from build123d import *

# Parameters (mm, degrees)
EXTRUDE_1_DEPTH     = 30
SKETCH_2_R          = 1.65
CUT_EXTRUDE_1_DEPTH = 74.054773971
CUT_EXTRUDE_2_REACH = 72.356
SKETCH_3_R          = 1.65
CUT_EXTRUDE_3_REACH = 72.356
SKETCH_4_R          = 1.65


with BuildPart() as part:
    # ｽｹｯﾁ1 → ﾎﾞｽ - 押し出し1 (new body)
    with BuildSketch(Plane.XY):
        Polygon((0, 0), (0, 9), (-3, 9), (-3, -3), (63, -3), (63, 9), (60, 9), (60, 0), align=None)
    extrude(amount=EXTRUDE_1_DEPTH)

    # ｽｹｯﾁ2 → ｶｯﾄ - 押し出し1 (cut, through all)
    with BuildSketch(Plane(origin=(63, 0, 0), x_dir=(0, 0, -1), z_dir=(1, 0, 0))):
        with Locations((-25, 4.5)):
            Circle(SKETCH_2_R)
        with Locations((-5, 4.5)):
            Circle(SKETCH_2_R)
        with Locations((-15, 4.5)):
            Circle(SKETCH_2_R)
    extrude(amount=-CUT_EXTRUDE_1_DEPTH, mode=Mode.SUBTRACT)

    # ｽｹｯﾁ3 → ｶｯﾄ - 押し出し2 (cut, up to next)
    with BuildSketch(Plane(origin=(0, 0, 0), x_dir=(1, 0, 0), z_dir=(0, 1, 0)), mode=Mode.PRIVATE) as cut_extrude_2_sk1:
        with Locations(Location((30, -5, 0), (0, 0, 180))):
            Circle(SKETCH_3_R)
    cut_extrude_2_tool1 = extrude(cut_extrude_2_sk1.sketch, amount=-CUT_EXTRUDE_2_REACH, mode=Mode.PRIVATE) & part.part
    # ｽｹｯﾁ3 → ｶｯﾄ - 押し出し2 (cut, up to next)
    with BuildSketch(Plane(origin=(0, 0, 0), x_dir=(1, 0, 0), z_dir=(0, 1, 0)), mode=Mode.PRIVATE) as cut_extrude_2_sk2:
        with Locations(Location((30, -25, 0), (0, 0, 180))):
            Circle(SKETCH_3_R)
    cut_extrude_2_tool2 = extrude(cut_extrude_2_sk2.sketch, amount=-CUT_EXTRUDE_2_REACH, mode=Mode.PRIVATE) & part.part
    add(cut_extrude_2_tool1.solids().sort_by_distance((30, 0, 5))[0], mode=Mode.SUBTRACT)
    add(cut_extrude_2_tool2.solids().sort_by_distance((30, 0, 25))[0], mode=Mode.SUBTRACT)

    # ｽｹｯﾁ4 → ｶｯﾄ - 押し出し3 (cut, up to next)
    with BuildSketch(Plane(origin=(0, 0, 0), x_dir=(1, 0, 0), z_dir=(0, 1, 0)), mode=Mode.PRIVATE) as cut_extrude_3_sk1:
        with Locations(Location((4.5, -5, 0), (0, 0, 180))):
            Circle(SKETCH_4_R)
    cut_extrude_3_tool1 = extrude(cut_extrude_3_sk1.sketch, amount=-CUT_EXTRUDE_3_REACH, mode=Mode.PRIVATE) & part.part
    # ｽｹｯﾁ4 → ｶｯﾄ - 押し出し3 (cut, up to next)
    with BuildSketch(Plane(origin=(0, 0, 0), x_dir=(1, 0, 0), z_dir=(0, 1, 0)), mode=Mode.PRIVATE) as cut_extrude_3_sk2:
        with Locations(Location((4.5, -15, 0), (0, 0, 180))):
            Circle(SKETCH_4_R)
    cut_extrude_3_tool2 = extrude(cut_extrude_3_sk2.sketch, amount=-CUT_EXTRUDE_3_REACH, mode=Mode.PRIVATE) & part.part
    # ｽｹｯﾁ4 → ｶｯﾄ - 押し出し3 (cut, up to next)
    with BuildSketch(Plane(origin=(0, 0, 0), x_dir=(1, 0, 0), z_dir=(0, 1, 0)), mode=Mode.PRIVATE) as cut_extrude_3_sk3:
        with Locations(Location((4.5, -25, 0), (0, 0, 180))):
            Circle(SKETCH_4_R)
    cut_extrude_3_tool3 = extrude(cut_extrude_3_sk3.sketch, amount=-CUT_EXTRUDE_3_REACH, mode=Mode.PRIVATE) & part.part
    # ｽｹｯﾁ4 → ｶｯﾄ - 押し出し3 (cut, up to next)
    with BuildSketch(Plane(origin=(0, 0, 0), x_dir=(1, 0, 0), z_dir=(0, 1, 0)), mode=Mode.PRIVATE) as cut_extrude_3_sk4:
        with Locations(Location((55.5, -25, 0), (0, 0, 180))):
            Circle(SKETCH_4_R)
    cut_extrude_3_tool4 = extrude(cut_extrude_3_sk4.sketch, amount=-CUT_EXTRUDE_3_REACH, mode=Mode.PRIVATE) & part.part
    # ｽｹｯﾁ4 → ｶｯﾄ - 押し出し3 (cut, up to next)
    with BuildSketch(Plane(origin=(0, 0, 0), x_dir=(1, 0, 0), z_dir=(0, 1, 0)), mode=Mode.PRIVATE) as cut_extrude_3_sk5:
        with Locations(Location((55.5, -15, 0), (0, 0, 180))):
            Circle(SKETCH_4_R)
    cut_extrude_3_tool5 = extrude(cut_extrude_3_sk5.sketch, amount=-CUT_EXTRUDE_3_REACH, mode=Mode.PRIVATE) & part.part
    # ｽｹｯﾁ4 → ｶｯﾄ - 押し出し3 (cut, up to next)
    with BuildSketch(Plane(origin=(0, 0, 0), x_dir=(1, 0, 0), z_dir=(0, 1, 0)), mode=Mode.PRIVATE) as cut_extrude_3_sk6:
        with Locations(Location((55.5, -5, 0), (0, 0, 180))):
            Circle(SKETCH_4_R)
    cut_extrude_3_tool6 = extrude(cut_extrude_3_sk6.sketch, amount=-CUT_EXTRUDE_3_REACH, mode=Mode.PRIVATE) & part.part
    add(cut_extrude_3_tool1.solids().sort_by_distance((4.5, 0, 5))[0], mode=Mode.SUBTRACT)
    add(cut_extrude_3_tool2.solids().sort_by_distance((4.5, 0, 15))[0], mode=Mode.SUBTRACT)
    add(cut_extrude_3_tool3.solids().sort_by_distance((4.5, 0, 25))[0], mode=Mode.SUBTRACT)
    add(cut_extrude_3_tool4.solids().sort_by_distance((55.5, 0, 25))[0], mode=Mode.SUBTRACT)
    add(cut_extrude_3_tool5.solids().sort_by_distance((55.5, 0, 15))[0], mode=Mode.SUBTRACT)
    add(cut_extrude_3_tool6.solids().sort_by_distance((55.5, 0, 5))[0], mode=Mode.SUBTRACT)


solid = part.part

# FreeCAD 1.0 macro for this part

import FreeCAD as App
import Part
import Sketcher

V = App.Vector
Q = App.Units.Quantity

doc = App.newDocument("Part")
params = doc.addObject("Spreadsheet::Sheet", "Params")
for row, (alias, value) in enumerate([
    ("sketch1_width", "3 mm"),
    ("sketch1_width2", "66 mm"),
    ("sketch1_height", "9 mm"),
    ("sketch1_height2", "12 mm"),
    ("pad1_length", "30 mm"),
    ("sketch2_diameter", "3.3 mm"),
    ("sketch3_diameter", "3.3 mm"),
    ("sketch4_diameter", "3.3 mm"),
    ("sketch5_diameter", "3.3 mm"),
    ("sketch6_diameter", "3.3 mm"),
    ("sketch7_diameter", "3.3 mm"),
    ("sketch8_diameter", "3.3 mm"),
    ("sketch9_diameter", "3.3 mm"),
    ("sketch10_diameter", "3.3 mm"),
], start=1):
    params.set(f"A{row}", alias)
    params.set(f"B{row}", "=" + value)
    params.setAlias(f"B{row}", alias)

body = doc.addObject("PartDesign::Body", "Body")

# Sketch on XY plane
sketch1 = doc.addObject("Sketcher::SketchObject", "Sketch")
body.addObject(sketch1)
sketch1.AttachmentSupport = (doc.XY_Plane, [""])
sketch1.MapMode = "FlatFace"
sketch1.addGeometry([
    Part.LineSegment(V(0, 0, 0), V(0, 9, 0)),  # 0
    Part.LineSegment(V(0, 9, 0), V(-3, 9, 0)),  # 1
    Part.LineSegment(V(-3, 9, 0), V(-3, -3, 0)),  # 2
    Part.LineSegment(V(-3, -3, 0), V(63, -3, 0)),  # 3
    Part.LineSegment(V(63, -3, 0), V(63, 9, 0)),  # 4
    Part.LineSegment(V(63, 9, 0), V(60, 9, 0)),  # 5
    Part.LineSegment(V(60, 9, 0), V(60, 0, 0)),  # 6
    Part.LineSegment(V(60, 0, 0), V(0, 0, 0)),  # 7
], False)
sketch1.addConstraint([
    Sketcher.Constraint("Coincident", 0, 2, 1, 1),
    Sketcher.Constraint("Coincident", 1, 2, 2, 1),
    Sketcher.Constraint("Coincident", 2, 2, 3, 1),
    Sketcher.Constraint("Coincident", 3, 2, 4, 1),
    Sketcher.Constraint("Coincident", 4, 2, 5, 1),
    Sketcher.Constraint("Coincident", 5, 2, 6, 1),
    Sketcher.Constraint("Coincident", 6, 2, 7, 1),
    Sketcher.Constraint("Coincident", 7, 2, 0, 1),
    Sketcher.Constraint("Vertical", 0),
    Sketcher.Constraint("Horizontal", 1),
    Sketcher.Constraint("Vertical", 2),
    Sketcher.Constraint("Horizontal", 3),
    Sketcher.Constraint("Vertical", 4),
    Sketcher.Constraint("Horizontal", 5),
    Sketcher.Constraint("Vertical", 6),
    Sketcher.Constraint("Horizontal", 7),
    Sketcher.Constraint("Coincident", 7, 2, -1, 1),
    Sketcher.Constraint("Horizontal", 1, 2, 4, 2),
    Sketcher.Constraint("Equal", 1, 5),
    Sketcher.Constraint("DistanceX", 1, 2, 1, 1, Q("3 mm")),
    Sketcher.Constraint("DistanceX", 3, 1, 3, 2, Q("66 mm")),
    Sketcher.Constraint("DistanceY", 0, 1, 0, 2, Q("9 mm")),
    Sketcher.Constraint("DistanceY", 2, 2, 2, 1, Q("12 mm")),
])
sketch1.setExpression("Constraints[19]", "Params.sketch1_width")
sketch1.setExpression("Constraints[20]", "Params.sketch1_width2")
sketch1.setExpression("Constraints[21]", "Params.sketch1_height")
sketch1.setExpression("Constraints[22]", "Params.sketch1_height2")
pad1 = doc.addObject("PartDesign::Pad", "Pad")
body.addObject(pad1)
pad1.Profile = sketch1
pad1.setExpression("Length", "Params.pad1_length")

# Sketch on YZ plane
sketch2 = doc.addObject("Sketcher::SketchObject", "Sketch001")
body.addObject(sketch2)
sketch2.AttachmentSupport = (doc.YZ_Plane, [""])
sketch2.MapMode = "FlatFace"
sketch2.AttachmentOffset = App.Placement(V(0, 0, 63), App.Rotation())
sketch2.addGeometry([
    Part.Circle(V(4.5, 25, 0), V(0, 0, 1), 1.6),
    Part.Circle(V(4.5, 5, 0), V(0, 0, 1), 1.6),
    Part.Circle(V(4.5, 15, 0), V(0, 0, 1), 1.6),
], False)
sketch2.addConstraint([
    Sketcher.Constraint("Equal", 0, 1),
    Sketcher.Constraint("Equal", 1, 2),
    Sketcher.Constraint("Vertical", 0, 3, 1, 3),
    Sketcher.Constraint("Vertical", 1, 3, 2, 3),
    Sketcher.Constraint("Diameter", 0, Q("3.3 mm")),
    Sketcher.Constraint("DistanceY", -1, 1, 0, 3, Q("25 mm")),
    Sketcher.Constraint("DistanceY", -1, 1, 1, 3, Q("5 mm")),
    Sketcher.Constraint("DistanceY", -1, 1, 2, 3, Q("15 mm")),
    Sketcher.Constraint("DistanceX", -1, 1, 0, 3, Q("4.5 mm")),
])
sketch2.setExpression("Constraints[4]", "Params.sketch2_diameter")
pocket1 = doc.addObject("PartDesign::Pocket", "Pocket")
body.addObject(pocket1)
pocket1.Profile = sketch2
pocket1.Type = "ThroughAll"

# Sketch on XZ plane
sketch3 = doc.addObject("Sketcher::SketchObject", "Sketch002")
body.addObject(sketch3)
sketch3.AttachmentSupport = (doc.XZ_Plane, [""])
sketch3.MapMode = "FlatFace"
sketch3.addGeometry(Part.Circle(V(30, 5, 0), V(0, 0, 1), 1.6), False)
sketch3.addConstraint([
    Sketcher.Constraint("Diameter", 0, Q("3.3 mm")),
    Sketcher.Constraint("DistanceX", -1, 1, 0, 3, Q("30 mm")),
    Sketcher.Constraint("DistanceY", -1, 1, 0, 3, Q("5 mm")),
])
sketch3.setExpression("Constraints[0]", "Params.sketch3_diameter")
pocket2 = doc.addObject("PartDesign::Pocket", "Pocket001")
body.addObject(pocket2)
pocket2.Profile = sketch3
pocket2.Type = "UpToFirst"
pocket2.Reversed = True

# Sketch on XZ plane
sketch4 = doc.addObject("Sketcher::SketchObject", "Sketch003")
body.addObject(sketch4)
sketch4.AttachmentSupport = (doc.XZ_Plane, [""])
sketch4.MapMode = "FlatFace"
sketch4.addGeometry(Part.Circle(V(30, 25, 0), V(0, 0, 1), 1.6), False)
sketch4.addConstraint([
    Sketcher.Constraint("Diameter", 0, Q("3.3 mm")),
    Sketcher.Constraint("DistanceX", -1, 1, 0, 3, Q("30 mm")),
    Sketcher.Constraint("DistanceY", -1, 1, 0, 3, Q("25 mm")),
])
sketch4.setExpression("Constraints[0]", "Params.sketch4_diameter")
pocket3 = doc.addObject("PartDesign::Pocket", "Pocket002")
body.addObject(pocket3)
pocket3.Profile = sketch4
pocket3.Type = "UpToFirst"
pocket3.Reversed = True

# Sketch on XZ plane
sketch5 = doc.addObject("Sketcher::SketchObject", "Sketch004")
body.addObject(sketch5)
sketch5.AttachmentSupport = (doc.XZ_Plane, [""])
sketch5.MapMode = "FlatFace"
sketch5.addGeometry(Part.Circle(V(4.5, 5, 0), V(0, 0, 1), 1.6), False)
sketch5.addConstraint([
    Sketcher.Constraint("Diameter", 0, Q("3.3 mm")),
    Sketcher.Constraint("DistanceY", -1, 1, 0, 3, Q("5 mm")),
    Sketcher.Constraint("DistanceX", -1, 1, 0, 3, Q("4.5 mm")),
])
sketch5.setExpression("Constraints[0]", "Params.sketch5_diameter")
pocket4 = doc.addObject("PartDesign::Pocket", "Pocket003")
body.addObject(pocket4)
pocket4.Profile = sketch5
pocket4.Type = "UpToFirst"
pocket4.Reversed = True

# Sketch on XZ plane
sketch6 = doc.addObject("Sketcher::SketchObject", "Sketch005")
body.addObject(sketch6)
sketch6.AttachmentSupport = (doc.XZ_Plane, [""])
sketch6.MapMode = "FlatFace"
sketch6.addGeometry(Part.Circle(V(4.5, 15, 0), V(0, 0, 1), 1.6), False)
sketch6.addConstraint([
    Sketcher.Constraint("Diameter", 0, Q("3.3 mm")),
    Sketcher.Constraint("DistanceY", -1, 1, 0, 3, Q("15 mm")),
    Sketcher.Constraint("DistanceX", -1, 1, 0, 3, Q("4.5 mm")),
])
sketch6.setExpression("Constraints[0]", "Params.sketch6_diameter")
pocket5 = doc.addObject("PartDesign::Pocket", "Pocket004")
body.addObject(pocket5)
pocket5.Profile = sketch6
pocket5.Type = "UpToFirst"
pocket5.Reversed = True

# Sketch on XZ plane
sketch7 = doc.addObject("Sketcher::SketchObject", "Sketch006")
body.addObject(sketch7)
sketch7.AttachmentSupport = (doc.XZ_Plane, [""])
sketch7.MapMode = "FlatFace"
sketch7.addGeometry(Part.Circle(V(4.5, 25, 0), V(0, 0, 1), 1.6), False)
sketch7.addConstraint([
    Sketcher.Constraint("Diameter", 0, Q("3.3 mm")),
    Sketcher.Constraint("DistanceY", -1, 1, 0, 3, Q("25 mm")),
    Sketcher.Constraint("DistanceX", -1, 1, 0, 3, Q("4.5 mm")),
])
sketch7.setExpression("Constraints[0]", "Params.sketch7_diameter")
pocket6 = doc.addObject("PartDesign::Pocket", "Pocket005")
body.addObject(pocket6)
pocket6.Profile = sketch7
pocket6.Type = "UpToFirst"
pocket6.Reversed = True

# Sketch on XZ plane
sketch8 = doc.addObject("Sketcher::SketchObject", "Sketch007")
body.addObject(sketch8)
sketch8.AttachmentSupport = (doc.XZ_Plane, [""])
sketch8.MapMode = "FlatFace"
sketch8.addGeometry(Part.Circle(V(55.5, 25, 0), V(0, 0, 1), 1.6), False)
sketch8.addConstraint([
    Sketcher.Constraint("Diameter", 0, Q("3.3 mm")),
    Sketcher.Constraint("DistanceY", -1, 1, 0, 3, Q("25 mm")),
    Sketcher.Constraint("DistanceX", -1, 1, 0, 3, Q("55.5 mm")),
])
sketch8.setExpression("Constraints[0]", "Params.sketch8_diameter")
pocket7 = doc.addObject("PartDesign::Pocket", "Pocket006")
body.addObject(pocket7)
pocket7.Profile = sketch8
pocket7.Type = "UpToFirst"
pocket7.Reversed = True

# Sketch on XZ plane
sketch9 = doc.addObject("Sketcher::SketchObject", "Sketch008")
body.addObject(sketch9)
sketch9.AttachmentSupport = (doc.XZ_Plane, [""])
sketch9.MapMode = "FlatFace"
sketch9.addGeometry(Part.Circle(V(55.5, 15, 0), V(0, 0, 1), 1.6), False)
sketch9.addConstraint([
    Sketcher.Constraint("Diameter", 0, Q("3.3 mm")),
    Sketcher.Constraint("DistanceY", -1, 1, 0, 3, Q("15 mm")),
    Sketcher.Constraint("DistanceX", -1, 1, 0, 3, Q("55.5 mm")),
])
sketch9.setExpression("Constraints[0]", "Params.sketch9_diameter")
pocket8 = doc.addObject("PartDesign::Pocket", "Pocket007")
body.addObject(pocket8)
pocket8.Profile = sketch9
pocket8.Type = "UpToFirst"
pocket8.Reversed = True

# Sketch on XZ plane
sketch10 = doc.addObject("Sketcher::SketchObject", "Sketch009")
body.addObject(sketch10)
sketch10.AttachmentSupport = (doc.XZ_Plane, [""])
sketch10.MapMode = "FlatFace"
sketch10.addGeometry(Part.Circle(V(55.5, 5, 0), V(0, 0, 1), 1.6), False)
sketch10.addConstraint([
    Sketcher.Constraint("Diameter", 0, Q("3.3 mm")),
    Sketcher.Constraint("DistanceY", -1, 1, 0, 3, Q("5 mm")),
    Sketcher.Constraint("DistanceX", -1, 1, 0, 3, Q("55.5 mm")),
])
sketch10.setExpression("Constraints[0]", "Params.sketch10_diameter")
pocket9 = doc.addObject("PartDesign::Pocket", "Pocket008")
body.addObject(pocket9)
pocket9.Profile = sketch10
pocket9.Type = "UpToFirst"
pocket9.Reversed = True

doc.recompute()
